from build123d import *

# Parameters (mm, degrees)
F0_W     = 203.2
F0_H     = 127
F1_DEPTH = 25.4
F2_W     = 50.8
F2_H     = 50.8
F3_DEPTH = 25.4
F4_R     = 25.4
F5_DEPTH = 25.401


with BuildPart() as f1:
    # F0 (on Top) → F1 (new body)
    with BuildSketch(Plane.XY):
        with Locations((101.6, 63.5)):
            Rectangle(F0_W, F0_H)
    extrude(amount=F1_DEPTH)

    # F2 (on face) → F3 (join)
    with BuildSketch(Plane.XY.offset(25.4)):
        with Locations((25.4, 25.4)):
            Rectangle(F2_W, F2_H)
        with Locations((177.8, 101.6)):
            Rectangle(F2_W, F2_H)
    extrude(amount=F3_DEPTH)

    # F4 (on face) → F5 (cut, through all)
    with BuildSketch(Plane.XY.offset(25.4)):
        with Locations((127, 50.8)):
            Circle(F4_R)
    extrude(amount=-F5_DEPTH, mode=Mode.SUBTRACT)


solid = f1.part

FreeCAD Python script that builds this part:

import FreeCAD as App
import Part
import Sketcher
Q = App.Units.Quantity

doc = App.newDocument("Part")
body = doc.addObject("PartDesign::Body", "Body")

# Sketch on XY plane
sketch1 = body.newObject("Sketcher::SketchObject", "Sketch")
sketch1.AttachmentSupport = (doc.getObject("XY_Plane"), [""])
sketch1.MapMode = "FlatFace"
sketch1.addGeometry([
    Part.LineSegment(App.Vector(0, 127, 0), App.Vector(0, 0, 0)),
    Part.LineSegment(App.Vector(0, 0, 0), App.Vector(203, 0, 0)),
    Part.LineSegment(App.Vector(203, 0, 0), App.Vector(203, 127, 0)),
    Part.LineSegment(App.Vector(203, 127, 0), App.Vector(0, 127, 0)),
], False)
sketch1.addConstraint([
    Sketcher.Constraint("Coincident", 0, 2, 1, 1),
    Sketcher.Constraint("Coincident", 1, 2, 2, 1),
    Sketcher.Constraint("Coincident", 2, 2, 3, 1),
    Sketcher.Constraint("Coincident", 3, 2, 0, 1),
    Sketcher.Constraint("Vertical", 0),
    Sketcher.Constraint("Horizontal", 1),
    Sketcher.Constraint("Vertical", 2),
    Sketcher.Constraint("Horizontal", 3),
    Sketcher.Constraint("Coincident", 0, 2, -1, 1),
    Sketcher.Constraint("DistanceX", 1, 1, 1, 2, Q("8 in")),
    Sketcher.Constraint("DistanceY", 0, 2, 0, 1, Q("5 in")),
])
pad1 = body.newObject("PartDesign::Pad", "Pad")
pad1.Profile = sketch1
pad1.Length = Q("1 in")

# Sketch on XY plane
sketch2 = body.newObject("Sketcher::SketchObject", "Sketch001")
sketch2.AttachmentSupport = (doc.getObject("XY_Plane"), [""])
sketch2.MapMode = "FlatFace"
sketch2.AttachmentOffset = App.Placement(App.Vector(0, 0, 1 * 25.4), App.Rotation())
sketch2.addGeometry([
    Part.LineSegment(App.Vector(0, 51, 0), App.Vector(0, 0, 0)),  # 0
    Part.LineSegment(App.Vector(0, 0, 0), App.Vector(51, 0, 0)),  # 1
    Part.LineSegment(App.Vector(51, 0, 0), App.Vector(51, 51, 0)),  # 2
    Part.LineSegment(App.Vector(51, 51, 0), App.Vector(0, 51, 0)),  # 3
    Part.LineSegment(App.Vector(152, 127, 0), App.Vector(152, 76, 0)),  # 4
    Part.LineSegment(App.Vector(152, 76, 0), App.Vector(203, 76, 0)),  # 5
    Part.LineSegment(App.Vector(203, 76, 0), App.Vector(203, 127, 0)),  # 6
    Part.LineSegment(App.Vector(203, 127, 0), App.Vector(152, 127, 0)),  # 7
], False)
sketch2.addConstraint([
    Sketcher.Constraint("Coincident", 0, 2, 1, 1),
    Sketcher.Constraint("Coincident", 1, 2, 2, 1),
    Sketcher.Constraint("Coincident", 2, 2, 3, 1),
    Sketcher.Constraint("Coincident", 3, 2, 0, 1),
    Sketcher.Constraint("Coincident", 4, 2, 5, 1),
    Sketcher.Constraint("Coincident", 5, 2, 6, 1),
    Sketcher.Constraint("Coincident", 6, 2, 7, 1),
    Sketcher.Constraint("Coincident", 7, 2, 4, 1),
    Sketcher.Constraint("Vertical", 0),
    Sketcher.Constraint("Horizontal", 1),
    Sketcher.Constraint("Vertical", 2),
    Sketcher.Constraint("Horizontal", 3),
    Sketcher.Constraint("Vertical", 4),
    Sketcher.Constraint("Horizontal", 5),
    Sketcher.Constraint("Vertical", 6),
    Sketcher.Constraint("Horizontal", 7),
    Sketcher.Constraint("Coincident", 0, 2, -1, 1),
    Sketcher.Constraint("Equal", 3, 5),
    Sketcher.Constraint("Equal", 7, 0),
    Sketcher.Constraint("Equal", 2, 4),
    Sketcher.Constraint("DistanceX", 1, 1, 1, 2, Q("2 in")),
    Sketcher.Constraint("DistanceX", -1, 1, 4, 2, Q("6 in")),
    Sketcher.Constraint("DistanceY", -1, 1, 4, 2, Q("3 in")),
])
pad2 = body.newObject("PartDesign::Pad", "Pad001")
pad2.Profile = sketch2
pad2.Length = Q("1 in")

# Sketch on XY plane
sketch3 = body.newObject("Sketcher::SketchObject", "Sketch002")
sketch3.AttachmentSupport = (doc.getObject("XY_Plane"), [""])
sketch3.MapMode = "FlatFace"
sketch3.AttachmentOffset = App.Placement(App.Vector(0, 0, 1 * 25.4), App.Rotation())
sketch3.addGeometry(Part.Circle(App.Vector(127, 51, 0), App.Vector(0, 0, 1), 25), False)
sketch3.addConstraint([
    Sketcher.Constraint("Diameter", 0, Q("2 in")),
    Sketcher.Constraint("DistanceX", -1, 1, 0, 3, Q("5 in")),
    Sketcher.Constraint("DistanceY", -1, 1, 0, 3, Q("2 in")),
])
pocket1 = body.newObject("PartDesign::Pocket", "Pocket")
pocket1.Profile = sketch3
pocket1.Type = "ThroughAll"

doc.recompute()
